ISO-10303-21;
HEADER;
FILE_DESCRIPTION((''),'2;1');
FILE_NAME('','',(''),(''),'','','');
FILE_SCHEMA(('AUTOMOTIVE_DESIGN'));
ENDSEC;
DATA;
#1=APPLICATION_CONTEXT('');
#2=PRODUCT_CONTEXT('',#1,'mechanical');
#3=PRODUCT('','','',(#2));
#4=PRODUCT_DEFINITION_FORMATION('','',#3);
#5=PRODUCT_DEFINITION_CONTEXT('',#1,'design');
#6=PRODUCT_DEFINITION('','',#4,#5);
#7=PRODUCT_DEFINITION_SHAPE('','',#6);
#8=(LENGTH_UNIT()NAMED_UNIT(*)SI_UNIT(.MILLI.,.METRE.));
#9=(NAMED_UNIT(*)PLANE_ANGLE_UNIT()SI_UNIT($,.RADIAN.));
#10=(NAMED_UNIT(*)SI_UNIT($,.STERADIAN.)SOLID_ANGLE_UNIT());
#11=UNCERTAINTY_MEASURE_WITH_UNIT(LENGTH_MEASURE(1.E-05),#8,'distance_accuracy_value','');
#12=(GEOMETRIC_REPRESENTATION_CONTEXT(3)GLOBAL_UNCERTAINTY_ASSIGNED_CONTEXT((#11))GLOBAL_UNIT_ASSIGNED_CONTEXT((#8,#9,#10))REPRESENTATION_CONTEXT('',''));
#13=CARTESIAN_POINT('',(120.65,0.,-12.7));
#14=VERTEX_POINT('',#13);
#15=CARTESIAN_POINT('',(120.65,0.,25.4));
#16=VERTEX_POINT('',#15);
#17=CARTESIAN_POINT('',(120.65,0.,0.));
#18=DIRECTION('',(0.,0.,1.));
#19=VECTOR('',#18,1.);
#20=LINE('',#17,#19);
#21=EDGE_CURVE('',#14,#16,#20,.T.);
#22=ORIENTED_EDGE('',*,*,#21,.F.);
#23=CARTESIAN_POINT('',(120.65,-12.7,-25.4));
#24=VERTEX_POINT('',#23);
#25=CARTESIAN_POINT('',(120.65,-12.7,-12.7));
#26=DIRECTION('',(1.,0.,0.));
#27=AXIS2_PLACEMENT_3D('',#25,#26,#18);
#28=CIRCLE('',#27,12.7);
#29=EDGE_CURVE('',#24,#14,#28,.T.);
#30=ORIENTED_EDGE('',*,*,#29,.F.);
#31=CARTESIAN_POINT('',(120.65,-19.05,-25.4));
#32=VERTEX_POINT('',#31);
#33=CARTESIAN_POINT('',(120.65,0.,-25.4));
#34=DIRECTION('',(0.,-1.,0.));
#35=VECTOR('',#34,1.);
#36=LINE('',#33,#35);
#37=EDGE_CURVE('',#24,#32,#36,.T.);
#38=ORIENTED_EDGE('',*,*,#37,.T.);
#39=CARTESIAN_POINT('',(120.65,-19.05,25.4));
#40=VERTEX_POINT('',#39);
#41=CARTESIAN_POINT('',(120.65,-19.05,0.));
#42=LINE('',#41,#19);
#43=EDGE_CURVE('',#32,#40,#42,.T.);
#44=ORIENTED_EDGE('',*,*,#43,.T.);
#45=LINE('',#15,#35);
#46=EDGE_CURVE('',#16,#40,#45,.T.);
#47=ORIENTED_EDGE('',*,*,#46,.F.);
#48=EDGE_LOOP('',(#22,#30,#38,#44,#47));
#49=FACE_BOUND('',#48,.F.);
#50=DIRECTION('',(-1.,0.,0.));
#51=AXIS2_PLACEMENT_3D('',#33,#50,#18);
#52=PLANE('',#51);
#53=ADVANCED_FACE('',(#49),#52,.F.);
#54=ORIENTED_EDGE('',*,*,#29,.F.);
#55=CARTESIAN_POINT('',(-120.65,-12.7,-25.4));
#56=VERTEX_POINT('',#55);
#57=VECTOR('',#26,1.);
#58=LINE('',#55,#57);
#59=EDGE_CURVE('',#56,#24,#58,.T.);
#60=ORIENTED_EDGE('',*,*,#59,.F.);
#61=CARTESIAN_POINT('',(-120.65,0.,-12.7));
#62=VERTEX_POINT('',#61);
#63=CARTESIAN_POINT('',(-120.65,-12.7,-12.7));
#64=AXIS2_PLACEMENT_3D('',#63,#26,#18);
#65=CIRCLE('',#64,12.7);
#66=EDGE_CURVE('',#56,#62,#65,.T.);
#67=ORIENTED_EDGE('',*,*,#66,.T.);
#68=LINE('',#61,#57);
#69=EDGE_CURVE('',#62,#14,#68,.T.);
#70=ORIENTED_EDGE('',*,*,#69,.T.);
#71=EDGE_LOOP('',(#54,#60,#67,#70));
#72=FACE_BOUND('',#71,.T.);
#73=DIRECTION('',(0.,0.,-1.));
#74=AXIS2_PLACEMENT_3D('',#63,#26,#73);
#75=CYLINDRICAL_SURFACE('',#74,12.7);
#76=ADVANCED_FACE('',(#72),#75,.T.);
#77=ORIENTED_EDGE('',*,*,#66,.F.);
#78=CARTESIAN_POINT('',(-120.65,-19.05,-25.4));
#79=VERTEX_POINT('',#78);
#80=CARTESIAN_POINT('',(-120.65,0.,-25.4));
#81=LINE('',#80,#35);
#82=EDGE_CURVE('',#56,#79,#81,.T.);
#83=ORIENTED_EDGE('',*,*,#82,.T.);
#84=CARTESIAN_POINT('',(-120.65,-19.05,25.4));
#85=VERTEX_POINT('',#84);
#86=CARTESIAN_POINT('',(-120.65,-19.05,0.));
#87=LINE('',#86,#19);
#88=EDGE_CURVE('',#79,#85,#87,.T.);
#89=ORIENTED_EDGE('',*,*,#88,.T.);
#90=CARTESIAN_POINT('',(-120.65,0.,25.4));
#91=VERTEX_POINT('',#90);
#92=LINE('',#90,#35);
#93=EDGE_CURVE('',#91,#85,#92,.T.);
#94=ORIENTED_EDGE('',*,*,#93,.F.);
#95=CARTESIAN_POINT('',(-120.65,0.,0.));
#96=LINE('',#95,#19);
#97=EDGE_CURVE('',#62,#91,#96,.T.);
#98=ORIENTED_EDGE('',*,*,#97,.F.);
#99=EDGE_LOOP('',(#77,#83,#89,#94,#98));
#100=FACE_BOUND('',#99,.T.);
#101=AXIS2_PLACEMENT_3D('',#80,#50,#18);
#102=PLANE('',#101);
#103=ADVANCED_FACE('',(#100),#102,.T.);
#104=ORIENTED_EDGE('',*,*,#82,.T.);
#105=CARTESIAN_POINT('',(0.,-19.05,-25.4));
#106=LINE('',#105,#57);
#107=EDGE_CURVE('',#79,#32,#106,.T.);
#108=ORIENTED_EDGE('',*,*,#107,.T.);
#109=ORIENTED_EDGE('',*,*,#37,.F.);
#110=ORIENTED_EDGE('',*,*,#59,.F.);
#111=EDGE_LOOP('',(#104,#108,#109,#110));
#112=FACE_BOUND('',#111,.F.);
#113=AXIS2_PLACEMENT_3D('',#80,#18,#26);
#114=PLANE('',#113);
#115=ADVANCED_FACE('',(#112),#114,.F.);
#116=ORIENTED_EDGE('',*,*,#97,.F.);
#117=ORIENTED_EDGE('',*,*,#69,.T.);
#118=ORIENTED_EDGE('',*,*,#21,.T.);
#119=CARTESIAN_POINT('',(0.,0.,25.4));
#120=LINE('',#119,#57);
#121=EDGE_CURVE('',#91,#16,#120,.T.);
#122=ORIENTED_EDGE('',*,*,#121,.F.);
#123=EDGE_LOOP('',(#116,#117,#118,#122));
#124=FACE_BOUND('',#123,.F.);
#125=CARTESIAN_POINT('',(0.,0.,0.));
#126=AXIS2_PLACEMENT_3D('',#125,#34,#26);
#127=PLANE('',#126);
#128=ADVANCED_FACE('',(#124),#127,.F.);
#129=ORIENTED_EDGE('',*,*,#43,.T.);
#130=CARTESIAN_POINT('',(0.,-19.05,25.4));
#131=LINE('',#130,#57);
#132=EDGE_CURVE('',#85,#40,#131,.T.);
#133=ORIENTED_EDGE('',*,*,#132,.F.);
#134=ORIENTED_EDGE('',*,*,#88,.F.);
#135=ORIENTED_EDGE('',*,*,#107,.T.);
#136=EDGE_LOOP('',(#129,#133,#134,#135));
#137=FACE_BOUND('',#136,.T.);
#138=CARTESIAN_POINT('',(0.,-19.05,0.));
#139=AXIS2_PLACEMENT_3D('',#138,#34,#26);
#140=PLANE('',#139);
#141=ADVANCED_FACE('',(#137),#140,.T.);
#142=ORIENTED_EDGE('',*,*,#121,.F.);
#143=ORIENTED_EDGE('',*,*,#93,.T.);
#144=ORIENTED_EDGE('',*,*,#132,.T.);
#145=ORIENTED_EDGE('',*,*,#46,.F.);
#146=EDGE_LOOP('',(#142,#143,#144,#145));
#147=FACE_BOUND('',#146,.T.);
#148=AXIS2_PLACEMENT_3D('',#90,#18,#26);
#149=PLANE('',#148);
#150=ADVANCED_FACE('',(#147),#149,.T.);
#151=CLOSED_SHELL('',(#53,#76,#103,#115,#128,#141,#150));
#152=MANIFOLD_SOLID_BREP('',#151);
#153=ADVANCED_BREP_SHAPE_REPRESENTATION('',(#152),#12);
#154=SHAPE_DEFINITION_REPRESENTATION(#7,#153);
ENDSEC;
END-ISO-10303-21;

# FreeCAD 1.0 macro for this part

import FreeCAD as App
import Part
import Sketcher
from FreeCAD import Vector
Q = App.Units.Quantity


def edges_at(feature, points):
    """Names of the edges that pass closest to the given points."""
    edges = feature.Shape.Edges
    near = lambda p: min(range(len(edges)), key=lambda i: edges[i].distToShape(Part.Vertex(*p))[0])
    return sorted({f"Edge{near(p) + 1}" for p in points})


def add_polygon(sketch, points):
    """Adds a closed chain of lines whose ends are joined by coincident constraints."""
    first, n = sketch.GeometryCount, len(points)
    for a, b in zip(points, points[1:] + points[:1]):
        sketch.addGeometry(Part.LineSegment(App.Vector(*a, 0), App.Vector(*b, 0)), False)
    for i in range(n):
        sketch.addConstraint(Sketcher.Constraint("Coincident", first + i, 2, first + (i + 1) % n, 1))

doc = App.newDocument("Part")
body = doc.addObject("PartDesign::Body", "Body")

# Sketch on XZ plane
sketch1 = body.newObject("Sketcher::SketchObject", "Sketch")
sketch1.AttachmentSupport = (doc.getObject("XZ_Plane"), [""])
sketch1.MapMode = "FlatFace"
add_polygon(sketch1, [(-121, 25), (-121, -25), (121, -25), (121, 25)])  # lines 0-3
sketch1.addConstraint([
    Sketcher.Constraint("Vertical", 0),
    Sketcher.Constraint("Horizontal", 1),
    Sketcher.Constraint("Vertical", 2),
    Sketcher.Constraint("Horizontal", 3),
    Sketcher.Constraint("Symmetric", 0, 2, 2, 2, -1, 1),
    Sketcher.Constraint("DistanceY", 0, 2, 0, 1, Q("2 in")),
    Sketcher.Constraint("DistanceX", 1, 1, 1, 2, Q("9.5 in")),
])
pad1 = body.newObject("PartDesign::Pad", "Pad")
pad1.Profile = sketch1
pad1.Length = Q("0.75 in")
doc.recompute()

fillet = body.newObject("PartDesign::Fillet", "Fillet")
fillet.Base = (pad1, edges_at(pad1, [(0, 0, -25.4)]))
fillet.Radius = Q("0.5 in")

doc.recompute()
